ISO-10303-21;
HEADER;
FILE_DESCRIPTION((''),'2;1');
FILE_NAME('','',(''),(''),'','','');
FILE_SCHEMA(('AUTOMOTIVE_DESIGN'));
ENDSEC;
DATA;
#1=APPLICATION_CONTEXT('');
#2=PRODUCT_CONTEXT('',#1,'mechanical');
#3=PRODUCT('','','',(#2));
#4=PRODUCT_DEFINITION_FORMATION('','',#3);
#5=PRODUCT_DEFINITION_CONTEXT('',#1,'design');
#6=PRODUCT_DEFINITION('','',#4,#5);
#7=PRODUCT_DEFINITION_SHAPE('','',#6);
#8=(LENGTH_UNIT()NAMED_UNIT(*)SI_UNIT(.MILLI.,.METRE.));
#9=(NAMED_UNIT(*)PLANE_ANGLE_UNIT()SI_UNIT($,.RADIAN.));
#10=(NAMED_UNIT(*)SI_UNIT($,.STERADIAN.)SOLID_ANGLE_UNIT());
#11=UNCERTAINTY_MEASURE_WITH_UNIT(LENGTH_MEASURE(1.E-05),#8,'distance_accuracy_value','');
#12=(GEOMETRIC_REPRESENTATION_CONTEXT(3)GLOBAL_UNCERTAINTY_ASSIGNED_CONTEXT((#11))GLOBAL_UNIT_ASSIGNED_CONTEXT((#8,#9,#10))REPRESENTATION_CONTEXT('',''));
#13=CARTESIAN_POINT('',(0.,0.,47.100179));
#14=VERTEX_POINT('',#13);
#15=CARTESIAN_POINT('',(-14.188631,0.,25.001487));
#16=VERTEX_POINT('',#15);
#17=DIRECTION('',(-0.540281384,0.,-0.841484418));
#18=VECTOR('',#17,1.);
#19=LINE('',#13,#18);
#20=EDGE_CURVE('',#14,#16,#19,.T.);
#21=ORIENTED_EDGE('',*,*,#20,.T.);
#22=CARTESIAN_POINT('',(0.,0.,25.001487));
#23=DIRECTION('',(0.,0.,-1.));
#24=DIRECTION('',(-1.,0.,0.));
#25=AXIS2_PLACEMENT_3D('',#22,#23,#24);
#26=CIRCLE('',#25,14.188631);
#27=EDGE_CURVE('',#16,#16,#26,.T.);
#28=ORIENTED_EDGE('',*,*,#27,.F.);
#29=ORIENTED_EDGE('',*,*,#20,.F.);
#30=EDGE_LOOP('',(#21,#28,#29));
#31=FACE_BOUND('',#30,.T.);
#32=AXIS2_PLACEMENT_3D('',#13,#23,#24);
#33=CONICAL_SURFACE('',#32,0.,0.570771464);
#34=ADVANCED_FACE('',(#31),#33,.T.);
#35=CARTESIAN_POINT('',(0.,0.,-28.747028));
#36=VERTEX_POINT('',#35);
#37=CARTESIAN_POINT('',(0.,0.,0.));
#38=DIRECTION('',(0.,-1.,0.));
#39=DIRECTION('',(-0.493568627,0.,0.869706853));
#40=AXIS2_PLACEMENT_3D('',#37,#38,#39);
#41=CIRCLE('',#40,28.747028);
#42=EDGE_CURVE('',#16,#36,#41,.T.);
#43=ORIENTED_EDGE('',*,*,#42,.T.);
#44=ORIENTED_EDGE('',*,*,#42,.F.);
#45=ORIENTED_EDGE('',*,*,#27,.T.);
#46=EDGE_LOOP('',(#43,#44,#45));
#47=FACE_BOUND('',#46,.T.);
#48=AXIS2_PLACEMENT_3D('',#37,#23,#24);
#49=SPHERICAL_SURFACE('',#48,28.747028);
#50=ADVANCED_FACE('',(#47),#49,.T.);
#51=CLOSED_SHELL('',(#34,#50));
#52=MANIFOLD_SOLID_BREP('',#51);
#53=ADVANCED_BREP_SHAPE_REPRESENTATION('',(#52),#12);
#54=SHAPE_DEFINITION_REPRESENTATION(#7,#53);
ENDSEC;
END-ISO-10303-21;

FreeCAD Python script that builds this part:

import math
import FreeCAD as App
import Part
import Sketcher

V = App.Vector

doc = App.newDocument("Part")
params = doc.addObject("Spreadsheet::Sheet", "Params")
for row, (alias, value) in enumerate([
    ("revolution_angle", "360 deg"),
], start=1):
    params.set(f"A{row}", alias)
    params.set(f"B{row}", "=" + value)
    params.setAlias(f"B{row}", alias)

body = doc.addObject("PartDesign::Body", "Body")

# Sketch on XZ plane
sketch1 = body.newObject("Sketcher::SketchObject", "Sketch")
sketch1.AttachmentSupport = (doc.getObject("XZ_Plane"), [""])
sketch1.MapMode = "FlatFace"
sketch1.addGeometry([
    Part.LineSegment(V(0, 47, 0), V(-14, 25, 0)),
    Part.ArcOfCircle(Part.Circle(V(0, 0, 0), V(0, 0, 1), 29), math.radians(120), math.radians(270)),
    Part.LineSegment(V(0, -29, 0), V(0, 47, 0)),
], False)
sketch1.addConstraint([
    Sketcher.Constraint("Coincident", 0, 2, 1, 1),
    Sketcher.Constraint("Coincident", 1, 2, 2, 1),
    Sketcher.Constraint("Coincident", 2, 2, 0, 1),
    Sketcher.Constraint("Vertical", 2),
    Sketcher.Constraint("Coincident", 1, 3, -1, 1),
    Sketcher.Constraint("PointOnObject", 1, 2, -2),
    Sketcher.Constraint("Radius", 1, 28.747028),
    Sketcher.Constraint("Distance", 0, 26.261558),
    Sketcher.Constraint("DistanceY", 2, 1, 2, 2, 75.847207),
])
revolution = body.newObject("PartDesign::Revolution", "Revolution")
revolution.Profile = sketch1
revolution.ReferenceAxis = (sketch1, ["V_Axis"])
revolution.setExpression("Angle", "Params.revolution_angle")

doc.recompute()
